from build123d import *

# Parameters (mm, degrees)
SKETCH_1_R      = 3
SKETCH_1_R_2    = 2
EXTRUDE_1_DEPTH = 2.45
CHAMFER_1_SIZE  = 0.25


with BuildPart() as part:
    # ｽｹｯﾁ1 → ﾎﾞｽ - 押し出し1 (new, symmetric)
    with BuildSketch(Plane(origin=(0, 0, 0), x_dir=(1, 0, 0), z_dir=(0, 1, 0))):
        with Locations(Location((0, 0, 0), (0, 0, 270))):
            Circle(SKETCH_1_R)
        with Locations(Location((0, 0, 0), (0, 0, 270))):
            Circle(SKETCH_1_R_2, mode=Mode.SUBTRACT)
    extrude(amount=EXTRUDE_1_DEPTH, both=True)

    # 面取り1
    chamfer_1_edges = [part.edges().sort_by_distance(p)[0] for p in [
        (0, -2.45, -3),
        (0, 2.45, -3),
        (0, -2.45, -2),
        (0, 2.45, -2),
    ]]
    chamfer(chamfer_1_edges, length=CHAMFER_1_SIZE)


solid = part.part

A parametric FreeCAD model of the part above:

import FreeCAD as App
import Part
import Sketcher

V = App.Vector


def edges_at(feature, points):
    """Names of the edges that pass closest to the given points."""
    edges = feature.Shape.Edges
    near = lambda p: min(range(len(edges)), key=lambda i: edges[i].distToShape(Part.Vertex(*p))[0])
    return sorted({f"Edge{near(p) + 1}" for p in points})

doc = App.newDocument("Part")
body = doc.addObject("PartDesign::Body", "Body")

sketch1 = body.newObject("Sketcher::SketchObject", "Sketch")
sketch1.AttachmentSupport = (doc.getObject("XZ_Plane"), [""])
sketch1.MapMode = "FlatFace"
sketch1.addGeometry([
    Part.Circle(V(0, 0, 0), V(0, 0, 1), 3),
    Part.Circle(V(0, 0, 0), V(0, 0, 1), 2),
], False)
sketch1.addConstraint([
    Sketcher.Constraint("Coincident", 0, 3, -1, 1),
    Sketcher.Constraint("Coincident", 1, 3, -1, 1),
    Sketcher.Constraint("Diameter", 0, 6.0),
    Sketcher.Constraint("Diameter", 1, 4.0),
])
pad1 = body.newObject("PartDesign::Pad", "Pad")
pad1.Profile = sketch1
pad1.Length = 4.9
pad1.Midplane = True
doc.recompute()

chamfer = body.newObject("PartDesign::Chamfer", "Chamfer")
chamfer.Base = (pad1, edges_at(pad1, [
    (0, -2.45, -3),
    (0, 2.45, -3),
    (0, -2.45, -2),
    (0, 2.45, -2),
]))
chamfer.Size = 0.25

doc.recompute()
